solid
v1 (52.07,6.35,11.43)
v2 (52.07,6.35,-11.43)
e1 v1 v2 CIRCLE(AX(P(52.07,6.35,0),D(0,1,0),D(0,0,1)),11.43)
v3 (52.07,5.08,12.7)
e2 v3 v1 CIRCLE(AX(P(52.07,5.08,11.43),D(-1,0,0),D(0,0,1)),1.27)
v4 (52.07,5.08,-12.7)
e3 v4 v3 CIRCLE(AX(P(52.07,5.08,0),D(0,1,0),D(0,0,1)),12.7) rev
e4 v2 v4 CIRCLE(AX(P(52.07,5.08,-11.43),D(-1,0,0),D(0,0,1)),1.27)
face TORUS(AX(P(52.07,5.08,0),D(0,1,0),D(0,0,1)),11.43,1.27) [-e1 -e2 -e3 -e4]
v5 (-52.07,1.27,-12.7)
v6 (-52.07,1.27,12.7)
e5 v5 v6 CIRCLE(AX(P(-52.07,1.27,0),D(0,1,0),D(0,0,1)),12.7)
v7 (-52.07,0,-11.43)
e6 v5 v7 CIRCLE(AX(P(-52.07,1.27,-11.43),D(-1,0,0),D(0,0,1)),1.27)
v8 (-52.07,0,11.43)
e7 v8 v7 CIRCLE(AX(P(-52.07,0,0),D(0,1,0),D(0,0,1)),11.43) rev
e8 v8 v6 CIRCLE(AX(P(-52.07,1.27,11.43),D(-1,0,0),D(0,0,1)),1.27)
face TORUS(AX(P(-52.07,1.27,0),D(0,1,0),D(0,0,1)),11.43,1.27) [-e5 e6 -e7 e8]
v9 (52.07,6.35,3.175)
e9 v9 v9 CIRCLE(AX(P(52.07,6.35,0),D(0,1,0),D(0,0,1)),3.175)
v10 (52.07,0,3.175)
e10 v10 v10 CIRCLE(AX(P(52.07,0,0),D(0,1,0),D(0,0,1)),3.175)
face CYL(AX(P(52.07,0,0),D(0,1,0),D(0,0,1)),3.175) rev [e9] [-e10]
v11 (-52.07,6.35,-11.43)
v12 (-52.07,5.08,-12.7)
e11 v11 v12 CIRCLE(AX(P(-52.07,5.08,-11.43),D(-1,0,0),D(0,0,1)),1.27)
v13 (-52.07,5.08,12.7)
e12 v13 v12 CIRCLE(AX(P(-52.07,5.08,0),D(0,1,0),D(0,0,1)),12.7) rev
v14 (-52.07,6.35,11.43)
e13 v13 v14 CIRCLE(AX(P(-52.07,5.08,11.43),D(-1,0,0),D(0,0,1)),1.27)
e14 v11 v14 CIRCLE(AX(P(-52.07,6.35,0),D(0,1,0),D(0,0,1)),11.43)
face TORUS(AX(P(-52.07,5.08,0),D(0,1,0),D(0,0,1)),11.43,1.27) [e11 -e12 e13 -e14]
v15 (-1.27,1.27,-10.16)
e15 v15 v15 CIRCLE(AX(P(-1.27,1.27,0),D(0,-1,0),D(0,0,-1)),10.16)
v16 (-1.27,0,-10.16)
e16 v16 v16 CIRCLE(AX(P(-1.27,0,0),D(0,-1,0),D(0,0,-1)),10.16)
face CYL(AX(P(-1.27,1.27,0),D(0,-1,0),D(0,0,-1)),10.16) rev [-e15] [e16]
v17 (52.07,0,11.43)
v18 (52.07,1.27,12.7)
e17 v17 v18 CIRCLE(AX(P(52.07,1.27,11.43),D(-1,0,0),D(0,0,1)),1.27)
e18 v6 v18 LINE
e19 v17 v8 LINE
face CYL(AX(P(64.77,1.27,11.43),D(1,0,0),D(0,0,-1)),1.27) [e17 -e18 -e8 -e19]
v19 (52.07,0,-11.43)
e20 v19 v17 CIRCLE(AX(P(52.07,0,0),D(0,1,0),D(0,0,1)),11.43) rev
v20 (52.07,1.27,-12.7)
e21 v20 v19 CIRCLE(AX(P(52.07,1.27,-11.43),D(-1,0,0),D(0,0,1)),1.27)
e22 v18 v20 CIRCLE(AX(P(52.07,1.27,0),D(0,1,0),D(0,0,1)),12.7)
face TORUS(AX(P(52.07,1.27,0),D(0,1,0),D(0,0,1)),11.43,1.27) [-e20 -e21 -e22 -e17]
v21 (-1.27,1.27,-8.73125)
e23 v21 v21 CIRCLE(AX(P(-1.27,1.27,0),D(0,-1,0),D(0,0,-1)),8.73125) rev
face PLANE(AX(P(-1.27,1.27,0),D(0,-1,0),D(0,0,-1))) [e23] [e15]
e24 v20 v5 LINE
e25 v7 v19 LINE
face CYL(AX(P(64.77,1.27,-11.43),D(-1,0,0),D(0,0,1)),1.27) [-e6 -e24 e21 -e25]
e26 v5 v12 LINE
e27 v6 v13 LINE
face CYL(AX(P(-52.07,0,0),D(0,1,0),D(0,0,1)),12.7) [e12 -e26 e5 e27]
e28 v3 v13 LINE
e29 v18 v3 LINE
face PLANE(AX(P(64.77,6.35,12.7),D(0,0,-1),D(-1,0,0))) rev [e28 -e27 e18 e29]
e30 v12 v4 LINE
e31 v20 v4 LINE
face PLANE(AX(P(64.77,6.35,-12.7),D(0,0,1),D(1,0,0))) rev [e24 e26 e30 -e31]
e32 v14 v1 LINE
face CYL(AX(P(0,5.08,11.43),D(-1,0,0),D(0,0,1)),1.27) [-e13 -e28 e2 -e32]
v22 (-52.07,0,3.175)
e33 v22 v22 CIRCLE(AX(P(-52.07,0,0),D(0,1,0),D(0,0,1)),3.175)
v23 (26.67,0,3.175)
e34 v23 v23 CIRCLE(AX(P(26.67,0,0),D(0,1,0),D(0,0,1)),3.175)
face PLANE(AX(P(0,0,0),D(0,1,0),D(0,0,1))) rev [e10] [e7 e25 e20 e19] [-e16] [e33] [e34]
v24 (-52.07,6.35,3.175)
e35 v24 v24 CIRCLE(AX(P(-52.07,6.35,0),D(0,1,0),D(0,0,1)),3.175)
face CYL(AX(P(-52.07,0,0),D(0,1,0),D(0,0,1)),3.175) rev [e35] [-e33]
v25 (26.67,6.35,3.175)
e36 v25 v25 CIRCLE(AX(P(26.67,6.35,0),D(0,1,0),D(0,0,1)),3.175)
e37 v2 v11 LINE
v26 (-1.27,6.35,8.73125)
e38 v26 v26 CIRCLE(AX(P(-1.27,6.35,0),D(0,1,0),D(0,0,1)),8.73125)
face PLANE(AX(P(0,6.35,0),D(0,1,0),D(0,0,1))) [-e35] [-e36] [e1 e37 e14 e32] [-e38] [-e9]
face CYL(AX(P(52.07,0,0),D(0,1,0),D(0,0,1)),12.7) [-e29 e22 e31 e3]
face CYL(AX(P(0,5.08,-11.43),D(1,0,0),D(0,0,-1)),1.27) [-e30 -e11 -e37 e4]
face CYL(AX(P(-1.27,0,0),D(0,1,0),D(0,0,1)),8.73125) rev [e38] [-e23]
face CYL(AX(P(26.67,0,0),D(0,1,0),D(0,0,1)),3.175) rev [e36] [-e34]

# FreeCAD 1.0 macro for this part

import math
import FreeCAD as App
import Part
import Sketcher

V = App.Vector
Q = App.Units.Quantity


def edges_at(feature, points):
    """Names of the edges that pass closest to the given points."""
    edges = feature.Shape.Edges
    near = lambda p: min(range(len(edges)), key=lambda i: edges[i].distToShape(Part.Vertex(*p))[0])
    return sorted({f"Edge{near(p) + 1}" for p in points})

doc = App.newDocument("Part")
body = doc.addObject("PartDesign::Body", "Body")

# Sketch on XZ plane
sketch1 = body.newObject("Sketcher::SketchObject", "Sketch")
sketch1.AttachmentSupport = (doc.getObject("XZ_Plane"), [""])
sketch1.MapMode = "FlatFace"
sketch1.addGeometry(Part.LineSegment(V(-64.77, -12.7, 0), V(-64.77, 12.7, 0)), False)
sketch1.addGeometry(Part.LineSegment(V(-64.77, 12.7, 0), V(64.77, 12.7, 0)), False)
sketch1.addGeometry(Part.LineSegment(V(64.77, 12.7, 0), V(64.77, -12.7, 0)), False)
sketch1.addGeometry(Part.LineSegment(V(64.77, -12.7, 0), V(-64.77, -12.7, 0)), False)
sketch1.addConstraint(Sketcher.Constraint("Coincident", 0, 2, 1, 1))
sketch1.addConstraint(Sketcher.Constraint("Coincident", 1, 2, 2, 1))
sketch1.addConstraint(Sketcher.Constraint("Coincident", 2, 2, 3, 1))
sketch1.addConstraint(Sketcher.Constraint("Coincident", 3, 2, 0, 1))
sketch1.addConstraint(Sketcher.Constraint("Vertical", 0))
sketch1.addConstraint(Sketcher.Constraint("Horizontal", 1))
sketch1.addConstraint(Sketcher.Constraint("Vertical", 2))
sketch1.addConstraint(Sketcher.Constraint("Horizontal", 3))
sketch1.addConstraint(Sketcher.Constraint("Symmetric", 0, 2, 2, 2, -1, 1))
sketch1.addConstraint(Sketcher.Constraint("DistanceY", 0, 1, 0, 2, Q("1 in")))
sketch1.addConstraint(Sketcher.Constraint("DistanceX", 1, 1, 1, 2, Q("5.1 in")))
pad1 = body.newObject("PartDesign::Pad", "Pad")
pad1.Profile = sketch1
pad1.Length = Q("0.25 in")
pad1.Reversed = True

# Sketch on XZ plane
sketch2 = body.newObject("Sketcher::SketchObject", "Sketch001")
sketch2.AttachmentSupport = (doc.getObject("XZ_Plane"), [""])
sketch2.MapMode = "FlatFace"
sketch2.AttachmentOffset = App.Placement(V(0, 0, -0.25 * 25.4), App.Rotation())
sketch2.addGeometry(Part.Circle(V(-52.07, 0, 0), V(0, 0, 1), 3.175), False)
sketch2.addGeometry(Part.Circle(V(26.67, 0, 0), V(0, 0, 1), 3.175), False)
sketch2.addGeometry(Part.Circle(V(52.07, 0, 0), V(0, 0, 1), 3.175), False)
sketch2.addGeometry(Part.Circle(V(-1.27, 0, 0), V(0, 0, 1), 8.73125), False)
sketch2.addConstraint(Sketcher.Constraint("Equal", 0, 1))
sketch2.addConstraint(Sketcher.Constraint("Equal", 1, 2))
sketch2.addConstraint(Sketcher.Constraint("Symmetric", 0, 3, 2, 3, -1, 1))
sketch2.addConstraint(Sketcher.Constraint("PointOnObject", 0, 3, -1))
sketch2.addConstraint(Sketcher.Constraint("PointOnObject", 1, 3, -1))
sketch2.addConstraint(Sketcher.Constraint("PointOnObject", 3, 3, -1))
sketch2.addConstraint(Sketcher.Constraint("Diameter", 0, Q("0.25 in")))
sketch2.addConstraint(Sketcher.Constraint("Diameter", 3, Q("0.6875 in")))
sketch2.addConstraint(Sketcher.Constraint("DistanceX", 1, 3, 2, 3, Q("1 in")))
sketch2.addConstraint(Sketcher.Constraint("DistanceX", 0, 3, 3, 3, Q("2 in")))
sketch2.addConstraint(Sketcher.Constraint("DistanceX", 0, 3, 1, 3, Q("3.1 in")))
pocket1 = body.newObject("PartDesign::Pocket", "Pocket")
pocket1.Profile = sketch2
pocket1.Type = "ThroughAll"
pocket1.Reversed = True

# Sketch on XZ plane
sketch3 = body.newObject("Sketcher::SketchObject", "Sketch002")
sketch3.AttachmentSupport = (doc.getObject("XZ_Plane"), [""])
sketch3.MapMode = "FlatFace"
sketch3.addGeometry(Part.Circle(V(-1.27, 0, 0), V(0, 0, 1), 10.16), False)
sketch3.addConstraint(Sketcher.Constraint("PointOnObject", 0, 3, -1))
sketch3.addConstraint(Sketcher.Constraint("Diameter", 0, Q("0.8 in")))
sketch3.addConstraint(Sketcher.Constraint("DistanceX", 0, 3, -1, 1, Q("0.05 in")))
pocket2 = body.newObject("PartDesign::Pocket", "Pocket001")
pocket2.Profile = sketch3
pocket2.Length = Q("0.05 in")

# Sketch on XZ plane
sketch4 = body.newObject("Sketcher::SketchObject", "Sketch003")
sketch4.AttachmentSupport = (doc.getObject("XZ_Plane"), [""])
sketch4.MapMode = "FlatFace"
sketch4.AttachmentOffset = App.Placement(V(0, 0, -0.25 * 25.4), App.Rotation())
sketch4.addGeometry(Part.ArcOfCircle(Part.Circle(V(-52.07, 0, 0), V(0, 0, 1), 12.7), math.radians(180), math.radians(270)), False)
sketch4.addGeometry(Part.LineSegment(V(-52.07, -12.7, 0), V(-64.77, -12.7, 0)), False)
sketch4.addGeometry(Part.LineSegment(V(-64.77, -12.7, 0), V(-64.77, 0, 0)), False)
sketch4.addGeometry(Part.LineSegment(V(-64.77, 12.7, 0), V(-52.07, 12.7, 0)), False)
sketch4.addGeometry(Part.ArcOfCircle(Part.Circle(V(-52.07, 0, 0), V(0, 0, 1), 12.7), math.radians(90), math.radians(180)), False)
sketch4.addGeometry(Part.LineSegment(V(-64.77, 0, 0), V(-64.77, 12.7, 0)), False)
sketch4.addGeometry(Part.ArcOfCircle(Part.Circle(V(52.07, 0, 0), V(0, 0, 1), 12.7), math.radians(0), math.radians(90)), False)
sketch4.addGeometry(Part.LineSegment(V(52.07, 12.7, 0), V(64.77, 12.7, 0)), False)
sketch4.addGeometry(Part.LineSegment(V(64.77, 12.7, 0), V(64.77, 0, 0)), False)
sketch4.addGeometry(Part.LineSegment(V(64.77, -12.7, 0), V(52.07, -12.7, 0)), False)
sketch4.addGeometry(Part.ArcOfCircle(Part.Circle(V(52.07, 0, 0), V(0, 0, 1), 12.7), math.radians(-90), math.radians(0)), False)
sketch4.addGeometry(Part.LineSegment(V(64.77, 0, 0), V(64.77, -12.7, 0)), False)
sketch4.addConstraint(Sketcher.Constraint("Tangent", 0, 2, 1, 1))
sketch4.addConstraint(Sketcher.Constraint("Coincident", 1, 2, 2, 1))
sketch4.addConstraint(Sketcher.Constraint("Tangent", 2, 2, 0, 1))
sketch4.addConstraint(Sketcher.Constraint("Tangent", 3, 2, 4, 1))
sketch4.addConstraint(Sketcher.Constraint("Tangent", 4, 2, 5, 1))
sketch4.addConstraint(Sketcher.Constraint("Coincident", 5, 2, 3, 1))
sketch4.addConstraint(Sketcher.Constraint("Tangent", 6, 2, 7, 1))
sketch4.addConstraint(Sketcher.Constraint("Coincident", 7, 2, 8, 1))
sketch4.addConstraint(Sketcher.Constraint("Tangent", 8, 2, 6, 1))
sketch4.addConstraint(Sketcher.Constraint("Tangent", 9, 2, 10, 1))
sketch4.addConstraint(Sketcher.Constraint("Tangent", 10, 2, 11, 1))
sketch4.addConstraint(Sketcher.Constraint("Coincident", 11, 2, 9, 1))
sketch4.addConstraint(Sketcher.Constraint("Horizontal", 1))
sketch4.addConstraint(Sketcher.Constraint("Vertical", 2))
sketch4.addConstraint(Sketcher.Constraint("Horizontal", 3))
sketch4.addConstraint(Sketcher.Constraint("Vertical", 5))
sketch4.addConstraint(Sketcher.Constraint("Horizontal", 7))
sketch4.addConstraint(Sketcher.Constraint("Vertical", 8))
sketch4.addConstraint(Sketcher.Constraint("Horizontal", 9))
sketch4.addConstraint(Sketcher.Constraint("Vertical", 11))
sketch4.addConstraint(Sketcher.Constraint("Coincident", 4, 3, 0, 3))
sketch4.addConstraint(Sketcher.Constraint("Coincident", 10, 3, 6, 3))
sketch4.addConstraint(Sketcher.Constraint("Equal", 0, 4))
sketch4.addConstraint(Sketcher.Constraint("Equal", 4, 6))
sketch4.addConstraint(Sketcher.Constraint("Equal", 6, 10))
sketch4.addConstraint(Sketcher.Constraint("Symmetric", 0, 3, 6, 3, -1, 1))
sketch4.addConstraint(Sketcher.Constraint("PointOnObject", 0, 3, -1))
sketch4.addConstraint(Sketcher.Constraint("Radius", 0, Q("0.5 in")))
sketch4.addConstraint(Sketcher.Constraint("DistanceX", 0, 3, 6, 3, Q("4.1 in")))
pocket3 = body.newObject("PartDesign::Pocket", "Pocket002")
pocket3.Profile = sketch4
pocket3.Type = "ThroughAll"
pocket3.Reversed = True
doc.recompute()

fillet = body.newObject("PartDesign::Fillet", "Fillet")
fillet.Base = (pocket3, edges_at(pocket3, [
    (0, 0, -12.7),
    (0, 6.35, -12.7),
    (-61.05, 6.35, 8.98),
    (-61.05, 0, -8.98),
    (61.05, 6.35, -8.98),
    (61.05, 0, 8.98),
    (0, 0, 12.7),
    (0, 6.35, 12.7),
]))
fillet.Radius = Q("0.05 in")

doc.recompute()
